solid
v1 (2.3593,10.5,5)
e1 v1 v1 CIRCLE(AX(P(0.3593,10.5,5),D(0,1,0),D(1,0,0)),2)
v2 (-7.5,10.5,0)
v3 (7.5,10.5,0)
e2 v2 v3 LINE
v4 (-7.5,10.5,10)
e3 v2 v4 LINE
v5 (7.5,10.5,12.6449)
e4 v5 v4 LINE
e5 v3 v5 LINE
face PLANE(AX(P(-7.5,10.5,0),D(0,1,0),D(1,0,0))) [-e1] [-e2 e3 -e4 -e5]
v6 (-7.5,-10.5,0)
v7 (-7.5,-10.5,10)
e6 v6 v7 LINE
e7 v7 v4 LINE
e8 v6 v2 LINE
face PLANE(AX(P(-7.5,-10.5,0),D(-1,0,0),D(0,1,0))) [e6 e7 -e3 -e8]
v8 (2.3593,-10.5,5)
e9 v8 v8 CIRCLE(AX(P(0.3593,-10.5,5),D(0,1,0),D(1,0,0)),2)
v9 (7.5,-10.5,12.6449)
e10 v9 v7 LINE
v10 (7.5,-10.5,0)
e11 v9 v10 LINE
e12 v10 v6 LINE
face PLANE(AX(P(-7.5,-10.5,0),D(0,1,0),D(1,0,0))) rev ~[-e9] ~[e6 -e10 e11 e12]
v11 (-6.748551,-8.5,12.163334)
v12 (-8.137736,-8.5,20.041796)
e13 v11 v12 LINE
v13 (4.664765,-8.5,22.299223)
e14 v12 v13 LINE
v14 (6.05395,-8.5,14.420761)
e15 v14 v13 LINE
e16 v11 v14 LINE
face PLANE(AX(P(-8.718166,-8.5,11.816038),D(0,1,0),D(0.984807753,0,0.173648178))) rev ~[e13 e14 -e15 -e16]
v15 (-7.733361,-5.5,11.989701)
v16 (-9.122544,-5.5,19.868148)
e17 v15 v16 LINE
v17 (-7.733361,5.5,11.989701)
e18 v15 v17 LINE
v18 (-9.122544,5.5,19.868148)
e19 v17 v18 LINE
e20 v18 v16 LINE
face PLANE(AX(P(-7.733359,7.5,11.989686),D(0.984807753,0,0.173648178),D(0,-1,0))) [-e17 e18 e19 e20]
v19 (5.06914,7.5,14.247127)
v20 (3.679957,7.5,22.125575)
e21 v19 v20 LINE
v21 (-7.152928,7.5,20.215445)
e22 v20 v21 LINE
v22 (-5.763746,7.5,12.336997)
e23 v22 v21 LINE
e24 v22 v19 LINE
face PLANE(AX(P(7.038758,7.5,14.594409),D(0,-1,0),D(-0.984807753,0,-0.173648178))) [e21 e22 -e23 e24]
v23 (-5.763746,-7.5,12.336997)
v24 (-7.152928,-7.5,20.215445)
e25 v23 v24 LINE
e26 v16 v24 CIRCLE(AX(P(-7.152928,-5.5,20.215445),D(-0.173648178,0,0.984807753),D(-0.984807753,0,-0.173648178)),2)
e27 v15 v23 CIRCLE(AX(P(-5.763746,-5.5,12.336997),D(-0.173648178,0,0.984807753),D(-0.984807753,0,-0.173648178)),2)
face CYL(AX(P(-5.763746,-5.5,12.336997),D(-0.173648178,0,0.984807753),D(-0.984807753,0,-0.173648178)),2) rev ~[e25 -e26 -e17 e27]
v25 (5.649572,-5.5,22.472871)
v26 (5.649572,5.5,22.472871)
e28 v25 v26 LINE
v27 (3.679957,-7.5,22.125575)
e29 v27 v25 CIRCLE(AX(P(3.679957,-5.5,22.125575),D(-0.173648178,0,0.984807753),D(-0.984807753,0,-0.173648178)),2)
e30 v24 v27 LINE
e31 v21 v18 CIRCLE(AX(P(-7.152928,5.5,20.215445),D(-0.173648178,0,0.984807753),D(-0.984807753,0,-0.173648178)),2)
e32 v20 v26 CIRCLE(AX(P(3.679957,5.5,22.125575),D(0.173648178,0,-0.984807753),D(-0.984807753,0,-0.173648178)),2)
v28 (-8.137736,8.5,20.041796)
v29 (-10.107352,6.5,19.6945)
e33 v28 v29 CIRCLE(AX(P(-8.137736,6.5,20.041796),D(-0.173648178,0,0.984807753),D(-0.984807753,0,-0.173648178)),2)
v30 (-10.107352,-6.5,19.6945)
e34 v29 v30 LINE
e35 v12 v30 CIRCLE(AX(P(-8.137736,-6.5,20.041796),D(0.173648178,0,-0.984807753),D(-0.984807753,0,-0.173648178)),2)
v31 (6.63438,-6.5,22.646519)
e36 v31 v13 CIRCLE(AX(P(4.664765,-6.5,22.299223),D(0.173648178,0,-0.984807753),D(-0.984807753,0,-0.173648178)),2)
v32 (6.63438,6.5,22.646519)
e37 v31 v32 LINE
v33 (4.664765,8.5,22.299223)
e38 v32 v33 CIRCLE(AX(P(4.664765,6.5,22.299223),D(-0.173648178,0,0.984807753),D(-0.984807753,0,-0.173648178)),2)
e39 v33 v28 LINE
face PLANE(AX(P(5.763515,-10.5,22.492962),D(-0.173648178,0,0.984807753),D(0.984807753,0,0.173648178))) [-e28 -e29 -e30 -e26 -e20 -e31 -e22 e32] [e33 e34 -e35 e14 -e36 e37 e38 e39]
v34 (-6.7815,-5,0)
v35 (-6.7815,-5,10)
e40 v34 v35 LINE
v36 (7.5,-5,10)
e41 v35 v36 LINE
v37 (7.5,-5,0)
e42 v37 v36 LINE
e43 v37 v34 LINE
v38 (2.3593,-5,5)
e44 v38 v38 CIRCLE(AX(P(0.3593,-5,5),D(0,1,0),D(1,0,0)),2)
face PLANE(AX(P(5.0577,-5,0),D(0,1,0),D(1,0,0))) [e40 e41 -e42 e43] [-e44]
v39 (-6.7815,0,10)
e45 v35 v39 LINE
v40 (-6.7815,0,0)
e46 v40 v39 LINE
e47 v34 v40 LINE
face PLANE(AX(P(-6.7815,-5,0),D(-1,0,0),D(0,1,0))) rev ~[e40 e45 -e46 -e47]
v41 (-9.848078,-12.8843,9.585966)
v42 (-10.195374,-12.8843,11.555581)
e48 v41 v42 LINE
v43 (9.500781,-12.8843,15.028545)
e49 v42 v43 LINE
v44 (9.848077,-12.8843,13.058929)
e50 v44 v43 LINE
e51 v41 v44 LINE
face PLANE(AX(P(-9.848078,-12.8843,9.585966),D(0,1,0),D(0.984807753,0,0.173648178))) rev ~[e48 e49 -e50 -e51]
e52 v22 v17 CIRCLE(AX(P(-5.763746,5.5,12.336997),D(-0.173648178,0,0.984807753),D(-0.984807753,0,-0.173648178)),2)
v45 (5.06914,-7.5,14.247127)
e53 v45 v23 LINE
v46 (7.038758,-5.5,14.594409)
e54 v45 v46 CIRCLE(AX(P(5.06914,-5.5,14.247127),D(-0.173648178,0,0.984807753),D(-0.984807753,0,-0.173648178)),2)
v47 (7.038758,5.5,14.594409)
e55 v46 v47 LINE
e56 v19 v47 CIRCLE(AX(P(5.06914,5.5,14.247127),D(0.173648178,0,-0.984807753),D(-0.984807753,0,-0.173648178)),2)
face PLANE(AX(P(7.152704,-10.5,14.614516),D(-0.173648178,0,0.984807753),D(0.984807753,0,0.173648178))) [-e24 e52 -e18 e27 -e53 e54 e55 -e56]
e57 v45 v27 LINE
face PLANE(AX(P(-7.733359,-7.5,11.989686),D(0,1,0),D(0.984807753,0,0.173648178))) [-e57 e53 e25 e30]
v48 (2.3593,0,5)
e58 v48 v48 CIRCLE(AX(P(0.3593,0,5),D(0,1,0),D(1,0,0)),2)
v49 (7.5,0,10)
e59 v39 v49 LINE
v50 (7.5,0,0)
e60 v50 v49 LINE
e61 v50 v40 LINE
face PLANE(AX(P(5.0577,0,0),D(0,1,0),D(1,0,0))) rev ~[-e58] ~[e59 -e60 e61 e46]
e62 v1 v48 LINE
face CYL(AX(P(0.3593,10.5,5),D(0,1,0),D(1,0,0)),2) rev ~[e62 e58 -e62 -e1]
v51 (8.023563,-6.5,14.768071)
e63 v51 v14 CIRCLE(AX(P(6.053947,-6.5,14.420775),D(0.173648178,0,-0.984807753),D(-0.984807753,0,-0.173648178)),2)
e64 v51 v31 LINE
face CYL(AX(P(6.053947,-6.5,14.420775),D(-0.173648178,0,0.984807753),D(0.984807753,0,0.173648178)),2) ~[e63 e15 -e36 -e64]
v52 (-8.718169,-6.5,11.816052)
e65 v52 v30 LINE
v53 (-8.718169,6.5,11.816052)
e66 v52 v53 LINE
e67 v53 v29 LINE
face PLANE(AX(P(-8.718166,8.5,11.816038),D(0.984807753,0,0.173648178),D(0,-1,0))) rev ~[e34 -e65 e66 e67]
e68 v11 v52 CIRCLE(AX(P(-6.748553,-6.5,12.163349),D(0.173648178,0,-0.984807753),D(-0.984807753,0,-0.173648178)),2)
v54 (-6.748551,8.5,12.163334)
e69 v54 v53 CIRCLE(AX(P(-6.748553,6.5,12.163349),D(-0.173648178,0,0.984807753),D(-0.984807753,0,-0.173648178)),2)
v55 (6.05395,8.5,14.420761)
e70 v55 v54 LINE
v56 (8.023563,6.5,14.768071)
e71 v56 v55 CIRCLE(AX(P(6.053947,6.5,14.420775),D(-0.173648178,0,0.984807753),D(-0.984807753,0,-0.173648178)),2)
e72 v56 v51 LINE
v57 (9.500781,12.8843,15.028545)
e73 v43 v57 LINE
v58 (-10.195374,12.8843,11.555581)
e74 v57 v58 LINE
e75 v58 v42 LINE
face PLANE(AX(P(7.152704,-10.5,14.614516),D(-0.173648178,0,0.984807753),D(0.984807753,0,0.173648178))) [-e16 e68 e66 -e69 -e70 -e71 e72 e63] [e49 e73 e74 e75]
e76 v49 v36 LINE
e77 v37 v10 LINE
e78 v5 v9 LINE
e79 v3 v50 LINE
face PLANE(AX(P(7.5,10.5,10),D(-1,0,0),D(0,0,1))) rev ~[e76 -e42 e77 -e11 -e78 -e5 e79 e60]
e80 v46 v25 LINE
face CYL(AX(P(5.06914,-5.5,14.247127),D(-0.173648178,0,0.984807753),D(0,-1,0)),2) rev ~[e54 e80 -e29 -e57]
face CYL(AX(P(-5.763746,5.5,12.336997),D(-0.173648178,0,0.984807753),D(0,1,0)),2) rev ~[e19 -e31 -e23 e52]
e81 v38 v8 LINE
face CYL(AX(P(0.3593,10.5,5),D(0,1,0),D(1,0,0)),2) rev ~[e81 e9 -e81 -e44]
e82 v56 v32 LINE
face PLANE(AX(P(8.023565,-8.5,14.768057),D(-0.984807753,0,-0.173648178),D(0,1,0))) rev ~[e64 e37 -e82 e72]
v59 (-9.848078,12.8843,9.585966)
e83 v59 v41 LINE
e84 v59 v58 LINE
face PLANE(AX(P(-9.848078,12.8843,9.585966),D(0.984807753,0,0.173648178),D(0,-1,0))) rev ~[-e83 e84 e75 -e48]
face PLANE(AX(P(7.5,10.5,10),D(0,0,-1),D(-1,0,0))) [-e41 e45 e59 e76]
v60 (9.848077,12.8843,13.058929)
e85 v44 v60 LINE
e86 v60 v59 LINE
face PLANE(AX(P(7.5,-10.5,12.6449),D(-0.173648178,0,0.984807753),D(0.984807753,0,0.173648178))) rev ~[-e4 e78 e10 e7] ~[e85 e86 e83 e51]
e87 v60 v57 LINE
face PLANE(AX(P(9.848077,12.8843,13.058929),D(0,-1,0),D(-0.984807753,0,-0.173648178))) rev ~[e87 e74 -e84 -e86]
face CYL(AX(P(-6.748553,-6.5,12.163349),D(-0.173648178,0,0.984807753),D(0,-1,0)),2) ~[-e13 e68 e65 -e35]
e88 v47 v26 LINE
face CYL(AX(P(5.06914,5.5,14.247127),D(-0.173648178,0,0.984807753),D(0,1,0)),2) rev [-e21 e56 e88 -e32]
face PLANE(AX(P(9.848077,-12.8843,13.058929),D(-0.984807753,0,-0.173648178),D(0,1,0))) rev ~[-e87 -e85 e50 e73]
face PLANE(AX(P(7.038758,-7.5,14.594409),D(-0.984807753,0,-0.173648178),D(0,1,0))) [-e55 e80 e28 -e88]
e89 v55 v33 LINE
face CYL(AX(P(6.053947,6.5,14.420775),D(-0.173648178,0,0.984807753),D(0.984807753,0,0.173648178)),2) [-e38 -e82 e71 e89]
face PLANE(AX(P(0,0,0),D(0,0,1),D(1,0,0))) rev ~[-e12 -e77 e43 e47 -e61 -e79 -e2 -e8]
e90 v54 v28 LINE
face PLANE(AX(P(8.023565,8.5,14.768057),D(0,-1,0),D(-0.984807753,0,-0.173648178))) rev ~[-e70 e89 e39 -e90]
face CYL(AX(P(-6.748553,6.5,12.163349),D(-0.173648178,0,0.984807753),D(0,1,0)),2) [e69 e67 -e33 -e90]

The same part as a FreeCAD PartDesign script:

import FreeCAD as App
import Part
import Sketcher

V = App.Vector
Q = App.Units.Quantity


def edges_at(feature, points):
    """Names of the edges that pass closest to the given points."""
    edges = feature.Shape.Edges
    near = lambda p: min(range(len(edges)), key=lambda i: edges[i].distToShape(Part.Vertex(*p))[0])
    return sorted({f"Edge{near(p) + 1}" for p in points})

doc = App.newDocument("Part")
params = doc.addObject("Spreadsheet::Sheet", "Params")
for row, (alias, value) in enumerate([
    ("sketch1_width", "15 mm"),
    ("sketch1_height", "5 mm"),
    ("sketch1_height2", "21 mm"),
    ("pad1_length", "10 mm"),
    ("sketch2_diameter", "4 mm"),
    ("sketch3_width", "15 mm"),
    ("pad2_length", "21 mm"),
    ("sketch4_width", "20 mm"),
    ("pad3_length", "2 mm"),
    ("sketch5_width", "17 mm"),
    ("pad4_length", "8 mm"),
    ("fillet_radius", "2 mm"),
], start=1):
    params.set(f"A{row}", alias)
    params.set(f"B{row}", "=" + value)
    params.setAlias(f"B{row}", alias)

body = doc.addObject("PartDesign::Body", "Body")

# Sketch on XY plane
sketch1 = doc.addObject("Sketcher::SketchObject", "Sketch")
body.addObject(sketch1)
sketch1.AttachmentSupport = (doc.XY_Plane, [""])
sketch1.MapMode = "FlatFace"
sketch1.addGeometry([
    Part.LineSegment(V(7.5, -10.5, 0), V(7.5, -5, 0)),  # 0
    Part.LineSegment(V(7.5, -5, 0), V(-6.7815, -5, 0)),  # 1
    Part.LineSegment(V(-6.7815, -5, 0), V(-6.7815, 0, 0)),  # 2
    Part.LineSegment(V(-6.7815, 0, 0), V(7.5, 0, 0)),  # 3
    Part.LineSegment(V(7.5, 0, 0), V(7.5, 10.5, 0)),  # 4
    Part.LineSegment(V(7.5, 10.5, 0), V(-7.5, 10.5, 0)),  # 5
    Part.LineSegment(V(-7.5, 10.5, 0), V(-7.5, -10.5, 0)),  # 6
    Part.LineSegment(V(-7.5, -10.5, 0), V(7.5, -10.5, 0)),  # 7
], False)
sketch1.addConstraint([
    Sketcher.Constraint("Coincident", 0, 2, 1, 1),
    Sketcher.Constraint("Coincident", 1, 2, 2, 1),
    Sketcher.Constraint("Coincident", 2, 2, 3, 1),
    Sketcher.Constraint("Coincident", 3, 2, 4, 1),
    Sketcher.Constraint("Coincident", 4, 2, 5, 1),
    Sketcher.Constraint("Coincident", 5, 2, 6, 1),
    Sketcher.Constraint("Coincident", 6, 2, 7, 1),
    Sketcher.Constraint("Coincident", 7, 2, 0, 1),
    Sketcher.Constraint("Vertical", 0),
    Sketcher.Constraint("Horizontal", 1),
    Sketcher.Constraint("Vertical", 2),
    Sketcher.Constraint("Horizontal", 3),
    Sketcher.Constraint("Vertical", 4),
    Sketcher.Constraint("Horizontal", 5),
    Sketcher.Constraint("Vertical", 6),
    Sketcher.Constraint("Horizontal", 7),
    Sketcher.Constraint("Symmetric", 4, 2, 6, 2, -1, 1),
    Sketcher.Constraint("PointOnObject", 2, 2, -1),
    Sketcher.Constraint("Vertical", 0, 2, 3, 2),
    Sketcher.Constraint("DistanceX", 5, 2, 5, 1, 15.0),
    Sketcher.Constraint("DistanceY", 2, 1, 2, 2, 5.0),
    Sketcher.Constraint("DistanceY", 6, 2, 6, 1, 21.0),
    Sketcher.Constraint("DistanceX", 1, 2, 1, 1, 14.2815),
])
sketch1.setExpression("Constraints[19]", "Params.sketch1_width")
sketch1.setExpression("Constraints[20]", "Params.sketch1_height")
sketch1.setExpression("Constraints[21]", "Params.sketch1_height2")
pad1 = doc.addObject("PartDesign::Pad", "Pad")
body.addObject(pad1)
pad1.Profile = sketch1
pad1.setExpression("Length", "Params.pad1_length")

# Sketch on XZ plane
sketch2 = doc.addObject("Sketcher::SketchObject", "Sketch001")
body.addObject(sketch2)
sketch2.AttachmentSupport = (doc.XZ_Plane, [""])
sketch2.MapMode = "FlatFace"
sketch2.AttachmentOffset = App.Placement(V(0, 0, -10.5), App.Rotation())
sketch2.addGeometry(Part.Circle(V(0.3593, 5, 0), V(0, 0, 1), 2), False)
sketch2.addConstraint([
    Sketcher.Constraint("Diameter", 0, 4.0),
    Sketcher.Constraint("DistanceY", -1, 1, 0, 3, 5.0),
    Sketcher.Constraint("DistanceX", -1, 1, 0, 3, 0.3593),
])
sketch2.setExpression("Constraints[0]", "Params.sketch2_diameter")
pocket1 = doc.addObject("PartDesign::Pocket", "Pocket")
body.addObject(pocket1)
pocket1.Profile = sketch2
pocket1.Type = "ThroughAll"
pocket1.Reversed = True

# Sketch on XZ plane
sketch3 = doc.addObject("Sketcher::SketchObject", "Sketch002")
body.addObject(sketch3)
sketch3.AttachmentSupport = (doc.XZ_Plane, [""])
sketch3.MapMode = "FlatFace"
sketch3.AttachmentOffset = App.Placement(V(0, 0, -10.5), App.Rotation())
sketch3.addGeometry([
    Part.LineSegment(V(7.5, 12.6449, 0), V(7.5, 10, 0)),
    Part.LineSegment(V(7.5, 10, 0), V(-7.5, 10, 0)),
    Part.LineSegment(V(-7.5, 10, 0), V(7.5, 12.6449, 0)),
], False)
sketch3.addConstraint([
    Sketcher.Constraint("Coincident", 0, 2, 1, 1),
    Sketcher.Constraint("Coincident", 1, 2, 2, 1),
    Sketcher.Constraint("Coincident", 2, 2, 0, 1),
    Sketcher.Constraint("Vertical", 0),
    Sketcher.Constraint("Horizontal", 1),
    Sketcher.Constraint("Angle", 2, Q("10 deg")),
    Sketcher.Constraint("DistanceY", -1, 1, 0, 2, 10.0),
    Sketcher.Constraint("DistanceX", 1, 2, 1, 1, 15.0),
    Sketcher.Constraint("DistanceX", -1, 1, 0, 2, 7.5),
])
sketch3.setExpression("Constraints[7]", "Params.sketch3_width")
pad2 = doc.addObject("PartDesign::Pad", "Pad001")
body.addObject(pad2)
pad2.Profile = sketch3
pad2.setExpression("Length", "Params.pad2_length")

# Sketch on an angled plane
sketch4 = doc.addObject("Sketcher::SketchObject", "Sketch003")
body.addObject(sketch4)
sketch4.Placement = App.Placement(V(7.5, -10.5, 12.6449), App.Rotation(V(0.984807753, 0, 0.173648178), V(0, 1, 0), V(-0.173648178, 0, 0.984807753), "ZXY"))
sketch4.addGeometry([
    Part.LineSegment(V(-17.6157, 23.3843, 0), V(-17.6157, -2.3843, 0)),
    Part.LineSegment(V(-17.6157, -2.3843, 0), V(2.3843, -2.3843, 0)),
    Part.LineSegment(V(2.3843, -2.3843, 0), V(2.3843, 23.3843, 0)),
    Part.LineSegment(V(2.3843, 23.3843, 0), V(-17.6157, 23.3843, 0)),
], False)
sketch4.addConstraint([
    Sketcher.Constraint("Coincident", 0, 2, 1, 1),
    Sketcher.Constraint("Coincident", 1, 2, 2, 1),
    Sketcher.Constraint("Coincident", 2, 2, 3, 1),
    Sketcher.Constraint("Coincident", 3, 2, 0, 1),
    Sketcher.Constraint("Vertical", 0),
    Sketcher.Constraint("Horizontal", 1),
    Sketcher.Constraint("Vertical", 2),
    Sketcher.Constraint("Horizontal", 3),
    Sketcher.Constraint("DistanceX", 1, 1, 1, 2, 20.0),
    Sketcher.Constraint("DistanceY", 0, 2, 0, 1, 25.7686),
    Sketcher.Constraint("DistanceX", 0, 2, -1, 1, 17.6157),
    Sketcher.Constraint("DistanceY", 0, 2, -1, 1, 2.3843),
])
sketch4.setExpression("Constraints[8]", "Params.sketch4_width")
pad3 = doc.addObject("PartDesign::Pad", "Pad002")
body.addObject(pad3)
pad3.Profile = sketch4
pad3.setExpression("Length", "Params.pad3_length")

# Sketch on an angled plane
sketch5 = doc.addObject("Sketcher::SketchObject", "Sketch004")
body.addObject(sketch5)
sketch5.Placement = App.Placement(V(7.1527, -10.5, 14.6145), App.Rotation(V(0.984807753, 0, 0.173648178), V(0, 1, 0), V(-0.173648178, 0, 0.984807753), "ZXY"))
sketch5.addGeometry([
    Part.LineSegment(V(0.8843, 2, 0), V(0.8843, 19, 0)),  # 0
    Part.LineSegment(V(0.8843, 19, 0), V(-16.1157, 19, 0)),  # 1
    Part.LineSegment(V(-16.1157, 19, 0), V(-16.1157, 2, 0)),  # 2
    Part.LineSegment(V(-16.1157, 2, 0), V(0.8843, 2, 0)),  # 3
    Part.LineSegment(V(-15.1157, 18, 0), V(-0.1157, 18, 0)),  # 4
    Part.LineSegment(V(-0.1157, 18, 0), V(-0.1157, 3, 0)),  # 5
    Part.LineSegment(V(-0.1157, 3, 0), V(-15.1157, 3, 0)),  # 6
    Part.LineSegment(V(-15.1157, 3, 0), V(-15.1157, 18, 0)),  # 7
], False)
sketch5.addConstraint([
    Sketcher.Constraint("Coincident", 0, 2, 1, 1),
    Sketcher.Constraint("Coincident", 1, 2, 2, 1),
    Sketcher.Constraint("Coincident", 2, 2, 3, 1),
    Sketcher.Constraint("Coincident", 3, 2, 0, 1),
    Sketcher.Constraint("Coincident", 4, 2, 5, 1),
    Sketcher.Constraint("Coincident", 5, 2, 6, 1),
    Sketcher.Constraint("Coincident", 6, 2, 7, 1),
    Sketcher.Constraint("Coincident", 7, 2, 4, 1),
    Sketcher.Constraint("Vertical", 0),
    Sketcher.Constraint("Horizontal", 1),
    Sketcher.Constraint("Vertical", 2),
    Sketcher.Constraint("Horizontal", 3),
    Sketcher.Constraint("Horizontal", 4),
    Sketcher.Constraint("Vertical", 5),
    Sketcher.Constraint("Horizontal", 6),
    Sketcher.Constraint("Vertical", 7),
    Sketcher.Constraint("Equal", 3, 0),
    Sketcher.Constraint("Equal", 6, 5),
    Sketcher.Constraint("DistanceX", 1, 2, 1, 1, 17.0),
    Sketcher.Constraint("DistanceX", 4, 2, 0, 2, 1.0),
    Sketcher.Constraint("DistanceY", 4, 2, 0, 2, 1.0),
    Sketcher.Constraint("DistanceY", 3, 2, 5, 2, 1.0),
    Sketcher.Constraint("DistanceY", -1, 1, 0, 2, 19.0),
    Sketcher.Constraint("DistanceX", -1, 1, 0, 2, 0.8843),
])
sketch5.setExpression("Constraints[18]", "Params.sketch5_width")
pad4 = doc.addObject("PartDesign::Pad", "Pad003")
body.addObject(pad4)
pad4.Profile = sketch5
pad4.setExpression("Length", "Params.pad4_length")
doc.recompute()

fillet = doc.addObject("PartDesign::Fillet", "Fillet")
body.addObject(fillet)
fillet.Base = (pad4, edges_at(pad4, [
    (7.329, -8.5, 18.707),
    (7.329, 8.5, 18.707),
    (-9.413, 8.5, 15.755),
    (-9.413, -8.5, 15.755),
    (-8.428, 7.5, 15.929),
    (6.344, 7.5, 18.534),
    (-8.428, -7.5, 15.929),
    (6.344, -7.5, 18.534),
]))
fillet.setExpression("Radius", "Params.fillet_radius")

doc.recompute()
